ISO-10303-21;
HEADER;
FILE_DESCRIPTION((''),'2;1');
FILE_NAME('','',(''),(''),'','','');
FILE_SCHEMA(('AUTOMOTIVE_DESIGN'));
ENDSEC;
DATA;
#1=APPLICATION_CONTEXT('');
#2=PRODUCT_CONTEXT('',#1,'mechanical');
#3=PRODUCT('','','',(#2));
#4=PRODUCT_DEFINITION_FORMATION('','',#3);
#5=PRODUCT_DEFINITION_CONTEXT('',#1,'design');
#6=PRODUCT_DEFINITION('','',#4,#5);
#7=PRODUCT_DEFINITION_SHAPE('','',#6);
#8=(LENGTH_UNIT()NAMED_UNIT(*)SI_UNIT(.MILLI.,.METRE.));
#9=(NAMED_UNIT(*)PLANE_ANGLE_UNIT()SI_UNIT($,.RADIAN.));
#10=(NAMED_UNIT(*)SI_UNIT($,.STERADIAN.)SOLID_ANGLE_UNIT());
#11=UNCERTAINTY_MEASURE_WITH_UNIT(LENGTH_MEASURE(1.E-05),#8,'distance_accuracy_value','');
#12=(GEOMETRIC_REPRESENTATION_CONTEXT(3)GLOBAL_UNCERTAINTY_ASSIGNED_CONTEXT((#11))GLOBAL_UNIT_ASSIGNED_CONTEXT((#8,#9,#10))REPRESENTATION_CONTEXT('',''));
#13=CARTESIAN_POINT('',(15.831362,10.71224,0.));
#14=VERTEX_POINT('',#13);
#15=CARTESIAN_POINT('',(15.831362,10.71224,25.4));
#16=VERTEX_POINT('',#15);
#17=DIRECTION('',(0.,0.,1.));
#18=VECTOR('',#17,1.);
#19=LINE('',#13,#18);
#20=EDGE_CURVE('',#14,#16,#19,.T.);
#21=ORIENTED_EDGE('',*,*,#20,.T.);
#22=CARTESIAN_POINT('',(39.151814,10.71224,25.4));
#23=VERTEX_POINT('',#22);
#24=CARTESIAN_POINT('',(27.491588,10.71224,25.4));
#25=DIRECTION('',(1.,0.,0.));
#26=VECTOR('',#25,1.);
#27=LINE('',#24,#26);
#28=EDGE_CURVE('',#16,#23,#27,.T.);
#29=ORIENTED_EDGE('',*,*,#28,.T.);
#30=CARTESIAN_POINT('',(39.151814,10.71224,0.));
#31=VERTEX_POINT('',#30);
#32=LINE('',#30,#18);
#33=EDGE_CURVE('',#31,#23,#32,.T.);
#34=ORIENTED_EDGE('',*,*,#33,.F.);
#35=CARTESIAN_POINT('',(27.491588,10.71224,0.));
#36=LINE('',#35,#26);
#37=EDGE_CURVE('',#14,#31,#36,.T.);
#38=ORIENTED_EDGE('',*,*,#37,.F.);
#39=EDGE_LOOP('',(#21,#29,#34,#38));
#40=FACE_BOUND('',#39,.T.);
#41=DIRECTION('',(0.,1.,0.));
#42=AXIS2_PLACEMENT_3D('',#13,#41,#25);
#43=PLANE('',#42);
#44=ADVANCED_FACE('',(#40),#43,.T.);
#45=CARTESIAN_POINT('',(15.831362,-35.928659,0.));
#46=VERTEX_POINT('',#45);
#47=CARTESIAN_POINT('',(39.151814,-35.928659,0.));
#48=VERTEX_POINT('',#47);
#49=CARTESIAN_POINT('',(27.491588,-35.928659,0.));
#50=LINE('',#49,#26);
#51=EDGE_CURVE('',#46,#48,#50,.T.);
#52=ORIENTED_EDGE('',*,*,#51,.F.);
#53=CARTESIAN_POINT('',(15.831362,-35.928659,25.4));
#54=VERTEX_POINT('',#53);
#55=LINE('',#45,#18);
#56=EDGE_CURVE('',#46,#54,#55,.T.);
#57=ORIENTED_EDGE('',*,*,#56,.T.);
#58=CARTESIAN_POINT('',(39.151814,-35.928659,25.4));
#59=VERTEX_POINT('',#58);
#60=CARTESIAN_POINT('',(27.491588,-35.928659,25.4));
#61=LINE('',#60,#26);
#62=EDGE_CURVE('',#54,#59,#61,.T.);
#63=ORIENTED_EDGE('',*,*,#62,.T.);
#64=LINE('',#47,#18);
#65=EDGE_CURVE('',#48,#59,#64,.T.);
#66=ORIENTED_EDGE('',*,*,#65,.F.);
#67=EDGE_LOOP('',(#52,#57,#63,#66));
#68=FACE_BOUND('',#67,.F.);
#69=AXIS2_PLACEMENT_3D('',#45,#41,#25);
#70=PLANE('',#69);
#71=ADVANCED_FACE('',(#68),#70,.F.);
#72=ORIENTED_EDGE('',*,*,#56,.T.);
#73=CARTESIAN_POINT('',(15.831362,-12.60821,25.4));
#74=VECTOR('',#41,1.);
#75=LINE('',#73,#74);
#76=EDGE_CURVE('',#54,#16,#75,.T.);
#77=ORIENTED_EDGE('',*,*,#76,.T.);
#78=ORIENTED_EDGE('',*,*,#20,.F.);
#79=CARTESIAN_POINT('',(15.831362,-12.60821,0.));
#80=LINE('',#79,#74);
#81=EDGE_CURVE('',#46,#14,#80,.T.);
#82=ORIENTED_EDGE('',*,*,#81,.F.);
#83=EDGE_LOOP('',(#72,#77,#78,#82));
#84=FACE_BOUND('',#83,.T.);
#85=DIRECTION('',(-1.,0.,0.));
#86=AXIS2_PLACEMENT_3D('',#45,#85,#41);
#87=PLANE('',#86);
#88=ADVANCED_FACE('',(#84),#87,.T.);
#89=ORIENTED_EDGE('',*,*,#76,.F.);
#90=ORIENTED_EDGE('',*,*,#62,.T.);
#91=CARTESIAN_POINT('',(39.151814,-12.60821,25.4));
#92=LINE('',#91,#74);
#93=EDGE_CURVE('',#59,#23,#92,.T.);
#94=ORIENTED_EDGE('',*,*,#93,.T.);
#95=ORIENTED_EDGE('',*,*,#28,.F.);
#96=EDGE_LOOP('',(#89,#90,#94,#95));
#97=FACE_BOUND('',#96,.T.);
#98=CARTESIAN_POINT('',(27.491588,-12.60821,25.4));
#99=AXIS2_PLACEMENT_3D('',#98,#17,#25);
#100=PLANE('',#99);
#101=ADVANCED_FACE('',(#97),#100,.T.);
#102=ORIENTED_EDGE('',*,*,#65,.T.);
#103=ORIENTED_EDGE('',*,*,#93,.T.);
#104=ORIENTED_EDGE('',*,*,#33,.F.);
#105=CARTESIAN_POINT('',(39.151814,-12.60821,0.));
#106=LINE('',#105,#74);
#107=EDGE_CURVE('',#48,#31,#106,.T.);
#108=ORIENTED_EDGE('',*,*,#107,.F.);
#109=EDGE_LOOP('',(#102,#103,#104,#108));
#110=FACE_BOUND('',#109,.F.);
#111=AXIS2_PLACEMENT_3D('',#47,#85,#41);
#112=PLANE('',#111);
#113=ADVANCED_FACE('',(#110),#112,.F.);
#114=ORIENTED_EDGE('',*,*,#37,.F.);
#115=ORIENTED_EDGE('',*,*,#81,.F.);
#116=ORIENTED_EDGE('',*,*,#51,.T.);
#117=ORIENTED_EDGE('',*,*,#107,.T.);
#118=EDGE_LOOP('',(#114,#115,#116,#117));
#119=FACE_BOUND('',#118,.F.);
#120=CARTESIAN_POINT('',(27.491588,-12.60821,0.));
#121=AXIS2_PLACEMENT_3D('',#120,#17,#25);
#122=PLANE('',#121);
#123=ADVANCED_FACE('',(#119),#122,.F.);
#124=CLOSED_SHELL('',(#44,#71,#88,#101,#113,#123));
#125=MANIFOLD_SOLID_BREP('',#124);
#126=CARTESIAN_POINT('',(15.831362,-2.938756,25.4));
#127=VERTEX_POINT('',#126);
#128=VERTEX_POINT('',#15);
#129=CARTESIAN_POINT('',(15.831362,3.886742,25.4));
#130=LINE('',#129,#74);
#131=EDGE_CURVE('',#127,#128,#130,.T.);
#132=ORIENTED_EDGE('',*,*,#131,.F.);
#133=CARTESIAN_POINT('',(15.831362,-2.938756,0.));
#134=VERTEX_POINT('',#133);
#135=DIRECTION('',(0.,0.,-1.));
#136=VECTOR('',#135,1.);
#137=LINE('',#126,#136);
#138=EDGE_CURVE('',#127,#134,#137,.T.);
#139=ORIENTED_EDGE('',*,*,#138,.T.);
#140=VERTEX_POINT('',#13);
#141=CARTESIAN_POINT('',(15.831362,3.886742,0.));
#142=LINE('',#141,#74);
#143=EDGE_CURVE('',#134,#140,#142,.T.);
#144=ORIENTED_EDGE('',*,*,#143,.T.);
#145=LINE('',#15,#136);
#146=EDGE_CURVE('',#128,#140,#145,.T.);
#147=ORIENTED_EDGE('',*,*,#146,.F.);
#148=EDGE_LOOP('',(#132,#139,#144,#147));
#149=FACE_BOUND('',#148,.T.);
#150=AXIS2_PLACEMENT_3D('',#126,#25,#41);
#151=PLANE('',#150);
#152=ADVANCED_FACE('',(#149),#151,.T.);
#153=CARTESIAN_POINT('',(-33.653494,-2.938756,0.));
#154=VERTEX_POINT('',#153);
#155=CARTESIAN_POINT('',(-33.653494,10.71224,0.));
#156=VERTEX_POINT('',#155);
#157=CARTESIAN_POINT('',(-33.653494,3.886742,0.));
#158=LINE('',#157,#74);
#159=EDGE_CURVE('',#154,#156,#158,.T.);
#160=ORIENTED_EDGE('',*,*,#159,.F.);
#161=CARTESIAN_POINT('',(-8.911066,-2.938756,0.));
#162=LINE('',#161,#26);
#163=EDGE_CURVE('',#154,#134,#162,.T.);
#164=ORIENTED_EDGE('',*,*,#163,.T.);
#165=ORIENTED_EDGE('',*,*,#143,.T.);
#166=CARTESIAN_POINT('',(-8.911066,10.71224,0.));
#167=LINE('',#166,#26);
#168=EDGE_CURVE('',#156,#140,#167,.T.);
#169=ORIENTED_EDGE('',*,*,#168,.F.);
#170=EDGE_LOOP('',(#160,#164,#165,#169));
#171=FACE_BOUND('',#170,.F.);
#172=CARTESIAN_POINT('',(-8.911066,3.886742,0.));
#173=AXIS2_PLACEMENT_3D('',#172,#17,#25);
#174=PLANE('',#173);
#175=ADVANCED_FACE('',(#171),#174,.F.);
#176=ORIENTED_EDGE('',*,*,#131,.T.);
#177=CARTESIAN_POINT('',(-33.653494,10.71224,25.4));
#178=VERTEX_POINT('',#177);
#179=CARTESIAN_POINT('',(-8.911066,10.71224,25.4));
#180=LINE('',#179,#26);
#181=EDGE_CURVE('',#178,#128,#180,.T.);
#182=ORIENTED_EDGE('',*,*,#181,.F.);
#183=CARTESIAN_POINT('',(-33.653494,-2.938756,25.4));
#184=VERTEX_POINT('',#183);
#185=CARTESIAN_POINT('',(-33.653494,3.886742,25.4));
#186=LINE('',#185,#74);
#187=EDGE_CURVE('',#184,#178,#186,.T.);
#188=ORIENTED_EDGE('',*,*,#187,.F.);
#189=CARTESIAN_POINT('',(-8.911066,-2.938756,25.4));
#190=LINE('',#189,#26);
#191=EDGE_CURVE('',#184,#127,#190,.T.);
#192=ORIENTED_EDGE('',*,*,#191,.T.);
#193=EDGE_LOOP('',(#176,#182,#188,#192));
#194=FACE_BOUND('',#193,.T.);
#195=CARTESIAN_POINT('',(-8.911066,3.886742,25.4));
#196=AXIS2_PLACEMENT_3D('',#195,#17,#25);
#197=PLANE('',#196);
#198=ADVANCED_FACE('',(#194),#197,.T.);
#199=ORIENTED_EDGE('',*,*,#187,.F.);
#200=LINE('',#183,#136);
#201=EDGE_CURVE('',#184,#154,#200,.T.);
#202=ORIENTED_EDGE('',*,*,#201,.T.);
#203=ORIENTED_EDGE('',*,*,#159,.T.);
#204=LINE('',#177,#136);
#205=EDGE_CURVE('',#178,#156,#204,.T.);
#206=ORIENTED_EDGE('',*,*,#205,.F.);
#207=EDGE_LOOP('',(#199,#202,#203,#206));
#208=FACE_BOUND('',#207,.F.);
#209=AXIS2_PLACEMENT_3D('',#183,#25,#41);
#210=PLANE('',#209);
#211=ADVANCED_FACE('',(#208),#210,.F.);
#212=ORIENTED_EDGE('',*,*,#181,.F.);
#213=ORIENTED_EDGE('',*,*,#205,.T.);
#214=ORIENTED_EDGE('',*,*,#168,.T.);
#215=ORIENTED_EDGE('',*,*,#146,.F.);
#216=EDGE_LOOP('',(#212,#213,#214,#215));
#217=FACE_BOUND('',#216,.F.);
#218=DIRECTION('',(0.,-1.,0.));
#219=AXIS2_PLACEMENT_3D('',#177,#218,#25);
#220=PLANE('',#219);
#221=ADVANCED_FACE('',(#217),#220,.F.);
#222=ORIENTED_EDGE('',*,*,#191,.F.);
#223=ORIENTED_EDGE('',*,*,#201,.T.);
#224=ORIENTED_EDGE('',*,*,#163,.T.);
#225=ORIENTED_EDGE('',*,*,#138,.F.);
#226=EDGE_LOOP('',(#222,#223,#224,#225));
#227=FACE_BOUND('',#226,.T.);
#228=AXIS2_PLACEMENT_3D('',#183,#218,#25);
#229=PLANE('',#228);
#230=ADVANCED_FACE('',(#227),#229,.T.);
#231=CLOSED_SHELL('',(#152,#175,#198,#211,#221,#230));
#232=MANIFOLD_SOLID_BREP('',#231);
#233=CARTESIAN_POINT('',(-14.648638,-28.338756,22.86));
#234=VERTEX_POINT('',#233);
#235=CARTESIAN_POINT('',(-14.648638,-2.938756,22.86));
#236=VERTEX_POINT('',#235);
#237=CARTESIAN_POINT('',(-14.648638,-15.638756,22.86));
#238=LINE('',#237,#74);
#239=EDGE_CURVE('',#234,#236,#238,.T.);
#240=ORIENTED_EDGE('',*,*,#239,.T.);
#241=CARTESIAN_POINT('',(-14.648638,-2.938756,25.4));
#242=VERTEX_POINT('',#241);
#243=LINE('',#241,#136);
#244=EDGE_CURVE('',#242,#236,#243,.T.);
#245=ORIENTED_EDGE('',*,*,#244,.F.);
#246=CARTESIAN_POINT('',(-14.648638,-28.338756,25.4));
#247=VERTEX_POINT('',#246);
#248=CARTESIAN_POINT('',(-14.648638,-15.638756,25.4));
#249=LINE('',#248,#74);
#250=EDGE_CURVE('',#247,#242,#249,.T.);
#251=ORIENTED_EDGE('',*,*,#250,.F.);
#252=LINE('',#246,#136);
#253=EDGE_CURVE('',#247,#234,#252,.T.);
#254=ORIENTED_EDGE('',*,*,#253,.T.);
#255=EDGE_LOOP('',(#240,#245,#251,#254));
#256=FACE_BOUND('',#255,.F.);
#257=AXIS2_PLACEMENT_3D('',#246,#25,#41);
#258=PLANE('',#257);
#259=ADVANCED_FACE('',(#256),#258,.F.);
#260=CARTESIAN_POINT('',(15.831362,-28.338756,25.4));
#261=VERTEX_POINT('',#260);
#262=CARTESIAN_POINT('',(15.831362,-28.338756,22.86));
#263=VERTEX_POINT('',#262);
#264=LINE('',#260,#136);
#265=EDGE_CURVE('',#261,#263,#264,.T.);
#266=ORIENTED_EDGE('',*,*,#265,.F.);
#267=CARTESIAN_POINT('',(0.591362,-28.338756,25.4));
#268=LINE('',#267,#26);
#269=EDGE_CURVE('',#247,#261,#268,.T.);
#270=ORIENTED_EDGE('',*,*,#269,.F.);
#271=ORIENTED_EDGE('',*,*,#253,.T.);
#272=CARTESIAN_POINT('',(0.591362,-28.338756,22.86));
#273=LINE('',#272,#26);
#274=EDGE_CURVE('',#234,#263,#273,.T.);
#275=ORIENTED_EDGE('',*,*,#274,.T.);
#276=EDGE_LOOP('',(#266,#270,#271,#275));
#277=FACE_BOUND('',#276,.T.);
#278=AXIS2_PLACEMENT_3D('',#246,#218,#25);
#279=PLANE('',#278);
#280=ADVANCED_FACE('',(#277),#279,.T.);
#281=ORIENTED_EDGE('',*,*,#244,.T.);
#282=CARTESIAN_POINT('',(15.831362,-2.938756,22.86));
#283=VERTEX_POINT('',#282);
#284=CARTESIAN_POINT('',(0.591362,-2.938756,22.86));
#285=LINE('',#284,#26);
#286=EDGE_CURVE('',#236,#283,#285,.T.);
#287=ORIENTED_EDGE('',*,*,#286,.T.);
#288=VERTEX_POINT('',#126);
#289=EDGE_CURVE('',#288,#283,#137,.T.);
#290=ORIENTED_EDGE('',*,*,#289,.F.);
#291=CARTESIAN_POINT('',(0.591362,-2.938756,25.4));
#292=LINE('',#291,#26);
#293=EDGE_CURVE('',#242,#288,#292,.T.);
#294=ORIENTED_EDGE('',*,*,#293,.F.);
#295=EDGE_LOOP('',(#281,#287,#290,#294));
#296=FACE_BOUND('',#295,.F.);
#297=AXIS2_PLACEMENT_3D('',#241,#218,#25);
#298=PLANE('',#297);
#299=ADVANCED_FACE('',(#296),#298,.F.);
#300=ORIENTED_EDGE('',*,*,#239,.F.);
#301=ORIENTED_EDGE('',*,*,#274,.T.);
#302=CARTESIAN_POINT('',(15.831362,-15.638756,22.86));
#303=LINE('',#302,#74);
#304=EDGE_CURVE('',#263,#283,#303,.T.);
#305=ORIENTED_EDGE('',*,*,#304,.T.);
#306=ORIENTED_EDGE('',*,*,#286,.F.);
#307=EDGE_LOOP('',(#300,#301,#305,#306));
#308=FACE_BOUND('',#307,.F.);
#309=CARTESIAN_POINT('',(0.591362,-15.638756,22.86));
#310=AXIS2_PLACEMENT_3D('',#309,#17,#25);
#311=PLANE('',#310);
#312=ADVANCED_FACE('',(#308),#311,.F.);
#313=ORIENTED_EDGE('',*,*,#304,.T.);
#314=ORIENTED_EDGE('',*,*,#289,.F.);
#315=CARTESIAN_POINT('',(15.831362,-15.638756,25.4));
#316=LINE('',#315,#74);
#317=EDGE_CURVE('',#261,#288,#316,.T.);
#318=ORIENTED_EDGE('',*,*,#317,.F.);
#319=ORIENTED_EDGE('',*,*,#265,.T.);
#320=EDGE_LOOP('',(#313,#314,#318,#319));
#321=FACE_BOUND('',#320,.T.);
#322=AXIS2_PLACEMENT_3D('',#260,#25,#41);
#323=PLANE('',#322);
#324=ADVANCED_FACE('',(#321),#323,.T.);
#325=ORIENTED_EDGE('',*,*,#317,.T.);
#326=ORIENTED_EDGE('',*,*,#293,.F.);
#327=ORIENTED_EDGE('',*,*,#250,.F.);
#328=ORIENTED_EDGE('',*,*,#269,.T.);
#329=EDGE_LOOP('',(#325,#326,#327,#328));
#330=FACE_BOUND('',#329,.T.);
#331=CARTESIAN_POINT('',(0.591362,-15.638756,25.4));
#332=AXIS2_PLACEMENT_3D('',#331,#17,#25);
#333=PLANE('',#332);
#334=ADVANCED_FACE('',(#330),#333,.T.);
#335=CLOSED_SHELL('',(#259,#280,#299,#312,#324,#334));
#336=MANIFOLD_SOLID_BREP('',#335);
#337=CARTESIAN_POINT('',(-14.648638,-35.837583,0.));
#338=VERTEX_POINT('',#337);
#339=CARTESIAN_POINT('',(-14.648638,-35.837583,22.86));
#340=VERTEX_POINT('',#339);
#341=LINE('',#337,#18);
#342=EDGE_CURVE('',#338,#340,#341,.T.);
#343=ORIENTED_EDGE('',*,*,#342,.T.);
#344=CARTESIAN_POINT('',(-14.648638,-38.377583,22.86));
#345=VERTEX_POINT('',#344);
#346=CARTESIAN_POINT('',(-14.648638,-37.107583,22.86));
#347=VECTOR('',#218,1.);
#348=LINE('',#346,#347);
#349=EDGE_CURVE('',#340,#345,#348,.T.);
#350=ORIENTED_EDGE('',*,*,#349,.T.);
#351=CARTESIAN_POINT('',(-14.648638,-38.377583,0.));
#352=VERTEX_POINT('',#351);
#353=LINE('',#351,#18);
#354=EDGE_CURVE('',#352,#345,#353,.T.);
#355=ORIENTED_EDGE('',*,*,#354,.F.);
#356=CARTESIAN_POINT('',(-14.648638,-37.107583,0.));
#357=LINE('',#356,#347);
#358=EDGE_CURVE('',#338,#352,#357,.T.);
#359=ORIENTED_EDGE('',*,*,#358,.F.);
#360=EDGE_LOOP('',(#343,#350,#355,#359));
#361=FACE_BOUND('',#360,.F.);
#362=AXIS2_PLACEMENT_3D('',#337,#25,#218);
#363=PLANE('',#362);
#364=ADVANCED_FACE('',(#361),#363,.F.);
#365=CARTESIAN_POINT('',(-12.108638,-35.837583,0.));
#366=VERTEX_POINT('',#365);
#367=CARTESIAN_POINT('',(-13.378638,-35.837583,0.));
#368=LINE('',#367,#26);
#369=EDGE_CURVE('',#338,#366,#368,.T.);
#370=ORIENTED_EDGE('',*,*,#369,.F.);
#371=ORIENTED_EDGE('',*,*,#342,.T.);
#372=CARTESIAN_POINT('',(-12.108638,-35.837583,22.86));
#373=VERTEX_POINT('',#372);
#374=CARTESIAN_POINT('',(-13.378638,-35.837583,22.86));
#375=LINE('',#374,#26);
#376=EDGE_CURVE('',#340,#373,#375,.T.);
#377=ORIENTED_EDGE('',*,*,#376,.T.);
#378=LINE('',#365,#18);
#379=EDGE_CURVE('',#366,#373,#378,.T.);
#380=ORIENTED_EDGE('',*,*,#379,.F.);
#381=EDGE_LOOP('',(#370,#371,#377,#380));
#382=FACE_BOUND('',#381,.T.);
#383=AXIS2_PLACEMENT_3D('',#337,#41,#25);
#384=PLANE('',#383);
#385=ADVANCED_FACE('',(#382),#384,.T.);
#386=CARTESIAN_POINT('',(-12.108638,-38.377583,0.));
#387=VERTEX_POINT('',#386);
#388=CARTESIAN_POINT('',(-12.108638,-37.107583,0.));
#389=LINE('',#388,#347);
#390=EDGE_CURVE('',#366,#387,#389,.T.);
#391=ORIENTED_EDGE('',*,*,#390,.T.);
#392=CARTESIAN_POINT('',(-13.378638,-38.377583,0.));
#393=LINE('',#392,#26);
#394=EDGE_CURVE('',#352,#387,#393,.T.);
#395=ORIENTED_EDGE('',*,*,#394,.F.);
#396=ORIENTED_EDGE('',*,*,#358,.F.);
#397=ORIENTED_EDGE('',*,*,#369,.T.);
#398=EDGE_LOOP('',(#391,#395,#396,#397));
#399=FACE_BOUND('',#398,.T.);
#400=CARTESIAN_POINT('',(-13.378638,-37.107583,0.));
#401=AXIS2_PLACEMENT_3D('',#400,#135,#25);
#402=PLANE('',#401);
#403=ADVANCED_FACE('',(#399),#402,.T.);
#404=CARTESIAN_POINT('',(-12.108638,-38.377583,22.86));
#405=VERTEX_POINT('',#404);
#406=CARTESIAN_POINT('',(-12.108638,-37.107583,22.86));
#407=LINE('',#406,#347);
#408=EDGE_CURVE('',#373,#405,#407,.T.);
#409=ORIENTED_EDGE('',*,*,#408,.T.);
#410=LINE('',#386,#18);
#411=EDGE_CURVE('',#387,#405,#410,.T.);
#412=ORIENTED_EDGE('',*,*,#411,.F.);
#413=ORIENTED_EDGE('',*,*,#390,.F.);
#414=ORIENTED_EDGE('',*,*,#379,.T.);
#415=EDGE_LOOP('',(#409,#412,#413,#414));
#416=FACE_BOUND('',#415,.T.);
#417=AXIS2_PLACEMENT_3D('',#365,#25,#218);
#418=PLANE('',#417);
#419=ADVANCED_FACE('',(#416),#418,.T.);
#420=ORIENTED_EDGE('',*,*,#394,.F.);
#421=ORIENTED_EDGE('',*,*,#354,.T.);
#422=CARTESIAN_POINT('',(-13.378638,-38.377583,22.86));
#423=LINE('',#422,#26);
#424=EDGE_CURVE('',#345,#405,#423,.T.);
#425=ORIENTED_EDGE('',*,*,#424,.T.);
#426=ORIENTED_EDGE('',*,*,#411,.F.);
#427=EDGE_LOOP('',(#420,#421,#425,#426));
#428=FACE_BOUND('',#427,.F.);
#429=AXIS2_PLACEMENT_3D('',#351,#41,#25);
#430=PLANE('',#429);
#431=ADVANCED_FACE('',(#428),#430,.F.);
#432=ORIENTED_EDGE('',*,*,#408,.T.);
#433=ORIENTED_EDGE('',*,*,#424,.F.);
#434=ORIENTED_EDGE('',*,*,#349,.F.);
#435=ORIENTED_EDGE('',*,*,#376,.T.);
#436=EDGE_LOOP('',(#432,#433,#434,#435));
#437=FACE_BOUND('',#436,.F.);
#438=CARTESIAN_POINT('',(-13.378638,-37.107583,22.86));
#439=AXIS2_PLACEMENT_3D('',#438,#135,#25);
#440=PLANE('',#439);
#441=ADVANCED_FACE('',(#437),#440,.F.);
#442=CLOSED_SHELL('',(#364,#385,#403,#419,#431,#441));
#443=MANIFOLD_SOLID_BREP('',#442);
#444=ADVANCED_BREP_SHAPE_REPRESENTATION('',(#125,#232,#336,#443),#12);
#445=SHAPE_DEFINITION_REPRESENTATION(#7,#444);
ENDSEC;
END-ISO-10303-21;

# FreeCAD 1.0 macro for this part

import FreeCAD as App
import Part
import Sketcher
from FreeCAD import Vector
Q = App.Units.Quantity


def add_polygon(sketch, points):
    """Adds a closed chain of lines whose ends are joined by coincident constraints."""
    first, n = sketch.GeometryCount, len(points)
    for a, b in zip(points, points[1:] + points[:1]):
        sketch.addGeometry(Part.LineSegment(App.Vector(*a, 0), App.Vector(*b, 0)), False)
    for i in range(n):
        sketch.addConstraint(Sketcher.Constraint("Coincident", first + i, 2, first + (i + 1) % n, 1))

doc = App.newDocument("Part")
body = doc.addObject("PartDesign::Body", "Body")

sketch1 = doc.addObject("Sketcher::SketchObject", "Sketch")
body.addObject(sketch1)
sketch1.AttachmentSupport = (doc.XY_Plane, [""])
sketch1.MapMode = "FlatFace"
add_polygon(sketch1, [(16, 11), (16, -36), (39, -36), (39, 11)])
sketch1.addConstraint(Sketcher.Constraint("Vertical", 0))
sketch1.addConstraint(Sketcher.Constraint("Horizontal", 1))
sketch1.addConstraint(Sketcher.Constraint("Vertical", 2))
sketch1.addConstraint(Sketcher.Constraint("Horizontal", 3))
sketch1.addConstraint(Sketcher.Constraint("DistanceY", 0, 2, 0, 1, 46.640899))
sketch1.addConstraint(Sketcher.Constraint("DistanceX", 1, 1, 1, 2, 23.320451))
sketch1.addConstraint(Sketcher.Constraint("DistanceY", 0, 2, -1, 1, 35.928659))
sketch1.addConstraint(Sketcher.Constraint("DistanceX", -1, 1, 0, 2, 15.831362))
pad1 = doc.addObject("PartDesign::Pad", "Pad")
body.addObject(pad1)
pad1.Profile = sketch1
pad1.Length = Q("1 in")
body2 = doc.addObject("PartDesign::Body", "Body001")

sketch2 = doc.addObject("Sketcher::SketchObject", "Sketch001")
body2.addObject(sketch2)
sketch2.AttachmentSupport = (doc.getObject("XY_Plane001"), [""])
sketch2.MapMode = "FlatFace"
sketch2.AttachmentOffset = App.Placement(Vector(0, 0, 1 * 25.4), App.Rotation())
add_polygon(sketch2, [(-34, 11), (-34, -3), (16, -3), (16, 11)])
sketch2.addConstraint(Sketcher.Constraint("Vertical", 0))
sketch2.addConstraint(Sketcher.Constraint("Horizontal", 1))
sketch2.addConstraint(Sketcher.Constraint("Vertical", 2))
sketch2.addConstraint(Sketcher.Constraint("Horizontal", 3))
sketch2.addConstraint(Sketcher.Constraint("DistanceX", 1, 1, 1, 2, 49.484856))
sketch2.addConstraint(Sketcher.Constraint("DistanceY", 0, 2, 0, 1, 13.650996))
sketch2.addConstraint(Sketcher.Constraint("DistanceY", -1, 1, 2, 2, 10.71224))
sketch2.addConstraint(Sketcher.Constraint("DistanceX", 0, 2, -1, 1, 33.653494))
pad2 = doc.addObject("PartDesign::Pad", "Pad001")
body2.addObject(pad2)
pad2.Profile = sketch2
pad2.Length = Q("1 in")
pad2.Reversed = True
body3 = doc.addObject("PartDesign::Body", "Body002")

sketch3 = doc.addObject("Sketcher::SketchObject", "Sketch002")
body3.addObject(sketch3)
sketch3.AttachmentSupport = (doc.getObject("XY_Plane002"), [""])
sketch3.MapMode = "FlatFace"
sketch3.AttachmentOffset = App.Placement(Vector(0, 0, 1 * 25.4), App.Rotation())
add_polygon(sketch3, [(-15, -3), (-15, -28), (16, -28), (16, -3)])
sketch3.addConstraint(Sketcher.Constraint("Vertical", 0))
sketch3.addConstraint(Sketcher.Constraint("Horizontal", 1))
sketch3.addConstraint(Sketcher.Constraint("Vertical", 2))
sketch3.addConstraint(Sketcher.Constraint("Horizontal", 3))
sketch3.addConstraint(Sketcher.Constraint("DistanceY", 0, 2, 0, 1, Q("1 in")))
sketch3.addConstraint(Sketcher.Constraint("DistanceX", 1, 1, 1, 2, Q("1.2 in")))
sketch3.addConstraint(Sketcher.Constraint("DistanceX", 0, 2, -1, 1, 14.648638))
sketch3.addConstraint(Sketcher.Constraint("DistanceY", 0, 2, -1, 1, 28.338756))
pad3 = doc.addObject("PartDesign::Pad", "Pad002")
body3.addObject(pad3)
pad3.Profile = sketch3
pad3.Length = Q("0.1 in")
pad3.Reversed = True
body4 = doc.addObject("PartDesign::Body", "Body003")

sketch4 = doc.addObject("Sketcher::SketchObject", "Sketch003")
body4.addObject(sketch4)
sketch4.AttachmentSupport = (doc.getObject("XY_Plane003"), [""])
sketch4.MapMode = "FlatFace"
add_polygon(sketch4, [(-14.6, -38.4), (-14.6, -35.8), (-12.1, -35.8), (-12.1, -38.4)])
sketch4.addConstraint(Sketcher.Constraint("Vertical", 0))
sketch4.addConstraint(Sketcher.Constraint("Horizontal", 1))
sketch4.addConstraint(Sketcher.Constraint("Vertical", 2))
sketch4.addConstraint(Sketcher.Constraint("Horizontal", 3))
sketch4.addConstraint(Sketcher.Constraint("Equal", 3, 0))
sketch4.addConstraint(Sketcher.Constraint("DistanceX", 1, 1, 1, 2, Q("0.1 in")))
sketch4.addConstraint(Sketcher.Constraint("DistanceX", 0, 2, -1, 1, 14.648638))
sketch4.addConstraint(Sketcher.Constraint("DistanceY", 0, 2, -1, 1, 35.837583))
pad4 = doc.addObject("PartDesign::Pad", "Pad003")
body4.addObject(pad4)
pad4.Profile = sketch4
pad4.Length = Q("0.9 in")

doc.recompute()
